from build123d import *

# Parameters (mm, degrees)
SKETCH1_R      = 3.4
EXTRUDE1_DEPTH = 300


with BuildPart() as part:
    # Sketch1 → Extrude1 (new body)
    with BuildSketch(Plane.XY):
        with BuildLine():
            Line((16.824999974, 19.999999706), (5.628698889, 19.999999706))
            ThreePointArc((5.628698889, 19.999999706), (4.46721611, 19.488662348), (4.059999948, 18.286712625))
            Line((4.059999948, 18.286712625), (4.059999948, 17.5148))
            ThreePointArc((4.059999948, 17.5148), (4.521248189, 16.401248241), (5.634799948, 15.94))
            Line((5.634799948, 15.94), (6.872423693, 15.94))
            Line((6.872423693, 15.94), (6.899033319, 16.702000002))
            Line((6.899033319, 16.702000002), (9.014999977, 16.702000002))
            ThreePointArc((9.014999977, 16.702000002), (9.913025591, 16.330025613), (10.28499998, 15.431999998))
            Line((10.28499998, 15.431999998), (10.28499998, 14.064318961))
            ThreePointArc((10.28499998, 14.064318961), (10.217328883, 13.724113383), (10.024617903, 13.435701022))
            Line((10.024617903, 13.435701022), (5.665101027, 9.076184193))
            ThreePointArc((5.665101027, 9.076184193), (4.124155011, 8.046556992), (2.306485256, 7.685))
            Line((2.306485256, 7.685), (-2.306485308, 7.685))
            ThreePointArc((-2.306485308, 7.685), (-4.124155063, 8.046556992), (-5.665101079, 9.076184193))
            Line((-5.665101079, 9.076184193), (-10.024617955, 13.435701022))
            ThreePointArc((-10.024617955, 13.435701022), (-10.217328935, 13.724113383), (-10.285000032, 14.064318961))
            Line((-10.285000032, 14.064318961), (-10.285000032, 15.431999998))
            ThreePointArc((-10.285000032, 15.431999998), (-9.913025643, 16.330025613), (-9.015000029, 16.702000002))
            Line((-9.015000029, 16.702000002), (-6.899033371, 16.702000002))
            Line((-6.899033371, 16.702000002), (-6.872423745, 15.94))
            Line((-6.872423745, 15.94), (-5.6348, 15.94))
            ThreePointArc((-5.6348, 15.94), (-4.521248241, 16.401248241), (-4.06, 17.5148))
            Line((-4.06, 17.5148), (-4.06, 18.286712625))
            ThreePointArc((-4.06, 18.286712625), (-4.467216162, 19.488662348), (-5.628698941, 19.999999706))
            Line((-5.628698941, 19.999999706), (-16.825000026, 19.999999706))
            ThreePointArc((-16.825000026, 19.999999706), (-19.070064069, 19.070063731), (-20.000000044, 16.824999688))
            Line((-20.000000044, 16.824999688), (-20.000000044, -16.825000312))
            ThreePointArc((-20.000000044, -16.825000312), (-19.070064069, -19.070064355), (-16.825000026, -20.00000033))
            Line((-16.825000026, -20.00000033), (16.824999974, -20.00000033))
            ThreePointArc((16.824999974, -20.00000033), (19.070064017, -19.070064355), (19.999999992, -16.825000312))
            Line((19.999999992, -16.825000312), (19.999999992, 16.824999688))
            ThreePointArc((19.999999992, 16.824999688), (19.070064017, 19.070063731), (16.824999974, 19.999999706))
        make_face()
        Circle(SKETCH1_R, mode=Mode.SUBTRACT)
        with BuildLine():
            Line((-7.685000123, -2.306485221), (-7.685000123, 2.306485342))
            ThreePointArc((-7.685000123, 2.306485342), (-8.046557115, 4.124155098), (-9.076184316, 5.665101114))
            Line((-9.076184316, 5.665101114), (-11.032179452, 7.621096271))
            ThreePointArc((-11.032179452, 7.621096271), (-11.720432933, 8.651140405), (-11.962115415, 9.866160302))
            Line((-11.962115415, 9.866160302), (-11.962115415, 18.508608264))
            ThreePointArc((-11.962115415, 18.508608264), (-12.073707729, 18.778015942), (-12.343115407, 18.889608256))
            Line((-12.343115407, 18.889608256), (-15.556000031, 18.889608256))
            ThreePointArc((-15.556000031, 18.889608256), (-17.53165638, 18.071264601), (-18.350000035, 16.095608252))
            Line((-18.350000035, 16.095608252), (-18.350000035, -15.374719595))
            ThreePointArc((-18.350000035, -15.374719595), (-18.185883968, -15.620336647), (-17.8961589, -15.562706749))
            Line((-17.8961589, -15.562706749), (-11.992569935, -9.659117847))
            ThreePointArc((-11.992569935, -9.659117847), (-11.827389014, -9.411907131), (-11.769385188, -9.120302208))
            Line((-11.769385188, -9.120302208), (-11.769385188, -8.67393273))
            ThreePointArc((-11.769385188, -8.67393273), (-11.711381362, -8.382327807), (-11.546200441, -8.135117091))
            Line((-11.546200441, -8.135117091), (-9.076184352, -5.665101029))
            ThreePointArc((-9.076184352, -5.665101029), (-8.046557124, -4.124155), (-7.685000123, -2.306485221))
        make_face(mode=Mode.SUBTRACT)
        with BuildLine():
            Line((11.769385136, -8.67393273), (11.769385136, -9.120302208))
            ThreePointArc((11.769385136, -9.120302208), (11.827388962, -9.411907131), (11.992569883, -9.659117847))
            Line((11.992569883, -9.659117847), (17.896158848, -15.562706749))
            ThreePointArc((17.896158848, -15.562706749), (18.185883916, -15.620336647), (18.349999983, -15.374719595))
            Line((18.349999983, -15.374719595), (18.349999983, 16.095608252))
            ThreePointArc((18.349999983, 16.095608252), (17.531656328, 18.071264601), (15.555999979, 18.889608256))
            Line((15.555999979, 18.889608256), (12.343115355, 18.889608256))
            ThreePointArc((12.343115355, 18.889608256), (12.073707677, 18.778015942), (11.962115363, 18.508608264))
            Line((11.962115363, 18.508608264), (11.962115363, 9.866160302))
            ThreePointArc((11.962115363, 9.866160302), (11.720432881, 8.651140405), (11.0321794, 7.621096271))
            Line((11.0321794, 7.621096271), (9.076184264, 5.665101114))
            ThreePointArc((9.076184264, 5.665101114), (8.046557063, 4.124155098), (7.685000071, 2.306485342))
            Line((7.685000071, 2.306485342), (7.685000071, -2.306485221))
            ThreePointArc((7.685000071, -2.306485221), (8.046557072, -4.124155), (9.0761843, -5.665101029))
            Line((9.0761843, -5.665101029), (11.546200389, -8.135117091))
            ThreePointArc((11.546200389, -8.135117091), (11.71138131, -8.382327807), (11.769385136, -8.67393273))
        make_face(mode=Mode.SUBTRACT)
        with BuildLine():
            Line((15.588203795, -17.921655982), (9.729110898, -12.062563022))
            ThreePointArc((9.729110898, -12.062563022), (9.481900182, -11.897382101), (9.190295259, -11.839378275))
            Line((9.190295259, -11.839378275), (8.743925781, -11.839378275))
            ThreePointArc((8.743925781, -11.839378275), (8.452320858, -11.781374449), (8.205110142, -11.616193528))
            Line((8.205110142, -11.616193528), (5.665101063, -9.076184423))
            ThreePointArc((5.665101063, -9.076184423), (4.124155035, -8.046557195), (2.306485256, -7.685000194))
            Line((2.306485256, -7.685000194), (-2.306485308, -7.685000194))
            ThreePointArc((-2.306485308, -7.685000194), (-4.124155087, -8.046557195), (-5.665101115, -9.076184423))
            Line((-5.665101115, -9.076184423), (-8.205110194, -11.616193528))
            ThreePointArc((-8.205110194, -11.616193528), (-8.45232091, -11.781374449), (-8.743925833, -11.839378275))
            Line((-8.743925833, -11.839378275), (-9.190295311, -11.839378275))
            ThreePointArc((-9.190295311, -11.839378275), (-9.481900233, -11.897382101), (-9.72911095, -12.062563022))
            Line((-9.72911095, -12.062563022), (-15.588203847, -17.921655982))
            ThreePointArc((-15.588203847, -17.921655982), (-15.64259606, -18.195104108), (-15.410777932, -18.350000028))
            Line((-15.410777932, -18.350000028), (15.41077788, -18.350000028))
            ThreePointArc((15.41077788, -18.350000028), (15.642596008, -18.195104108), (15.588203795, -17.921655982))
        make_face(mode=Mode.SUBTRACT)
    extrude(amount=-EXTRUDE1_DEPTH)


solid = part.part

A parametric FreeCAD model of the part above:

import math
import FreeCAD as App
import Part
import Sketcher
Q = App.Units.Quantity

doc = App.newDocument("Part")
body = doc.addObject("PartDesign::Body", "Body")

sketch1 = body.newObject("Sketcher::SketchObject", "Sketch")
sketch1.AttachmentSupport = (doc.getObject("XY_Plane"), [""])
sketch1.MapMode = "FlatFace"
sketch1.addGeometry([
    Part.LineSegment(App.Vector(16.82, 20, 0), App.Vector(5.63, 20, 0)),
    Part.ArcOfCircle(Part.Circle(App.Vector(5.63, 18.43, 0), App.Vector(0, 0, 1), 1.57), math.radians(90), math.radians(185)),
    Part.LineSegment(App.Vector(4.06, 18.29, 0), App.Vector(4.06, 17.51, 0)),
    Part.ArcOfCircle(Part.Circle(App.Vector(5.63, 17.51, 0), App.Vector(0, 0, 1), 1.57), math.radians(180), math.radians(270)),
    Part.LineSegment(App.Vector(5.63, 15.94, 0), App.Vector(6.87, 15.94, 0)),
    Part.LineSegment(App.Vector(6.87, 15.94, 0), App.Vector(6.9, 16.7, 0)),
    Part.LineSegment(App.Vector(6.9, 16.7, 0), App.Vector(9.01, 16.7, 0)),
    Part.ArcOfCircle(Part.Circle(App.Vector(9.01, 15.43, 0), App.Vector(0, 0, 1), 1.27), math.radians(0), math.radians(90)),
    Part.LineSegment(App.Vector(10.28, 15.43, 0), App.Vector(10.28, 14.06, 0)),
    Part.ArcOfCircle(Part.Circle(App.Vector(9.4, 14.06, 0), App.Vector(0, 0, 1), 0.89), math.radians(-45), math.radians(0)),
    Part.LineSegment(App.Vector(10.02, 13.44, 0), App.Vector(5.67, 9.08, 0)),
    Part.ArcOfCircle(Part.Circle(App.Vector(2.31, 12.43, 0), App.Vector(0, 0, 1), 4.75), math.radians(-90), math.radians(-45)),
    Part.LineSegment(App.Vector(2.31, 7.68, 0), App.Vector(-2.31, 7.68, 0)),
    Part.ArcOfCircle(Part.Circle(App.Vector(-2.31, 12.43, 0), App.Vector(0, 0, 1), 4.75), math.radians(-135), math.radians(-90)),
    Part.LineSegment(App.Vector(-5.67, 9.08, 0), App.Vector(-10.02, 13.44, 0)),
    Part.ArcOfCircle(Part.Circle(App.Vector(-9.4, 14.06, 0), App.Vector(0, 0, 1), 0.89), math.radians(180), math.radians(225)),
    Part.LineSegment(App.Vector(-10.29, 14.06, 0), App.Vector(-10.29, 15.43, 0)),
    Part.ArcOfCircle(Part.Circle(App.Vector(-9.02, 15.43, 0), App.Vector(0, 0, 1), 1.27), math.radians(90), math.radians(180)),
    Part.LineSegment(App.Vector(-9.02, 16.7, 0), App.Vector(-6.9, 16.7, 0)),
    Part.LineSegment(App.Vector(-6.9, 16.7, 0), App.Vector(-6.87, 15.94, 0)),
    Part.LineSegment(App.Vector(-6.87, 15.94, 0), App.Vector(-5.63, 15.94, 0)),
    Part.ArcOfCircle(Part.Circle(App.Vector(-5.63, 17.51, 0), App.Vector(0, 0, 1), 1.57), math.radians(-90), math.radians(0)),
    Part.LineSegment(App.Vector(-4.06, 17.51, 0), App.Vector(-4.06, 18.29, 0)),
    Part.ArcOfCircle(Part.Circle(App.Vector(-5.63, 18.43, 0), App.Vector(0, 0, 1), 1.57), math.radians(-5), math.radians(90)),
    Part.LineSegment(App.Vector(-5.63, 20, 0), App.Vector(-16.83, 20, 0)),
    Part.ArcOfCircle(Part.Circle(App.Vector(-16.83, 16.82, 0), App.Vector(0, 0, 1), 3.18), math.radians(90), math.radians(180)),
    Part.LineSegment(App.Vector(-20, 16.82, 0), App.Vector(-20, -16.83, 0)),
    Part.ArcOfCircle(Part.Circle(App.Vector(-16.83, -16.83, 0), App.Vector(0, 0, 1), 3.18), math.radians(180), math.radians(270)),
    Part.LineSegment(App.Vector(-16.83, -20, 0), App.Vector(16.82, -20, 0)),
    Part.ArcOfCircle(Part.Circle(App.Vector(16.82, -16.83, 0), App.Vector(0, 0, 1), 3.18), math.radians(-90), math.radians(0)),
    Part.LineSegment(App.Vector(20, -16.83, 0), App.Vector(20, 16.82, 0)),
    Part.ArcOfCircle(Part.Circle(App.Vector(16.82, 16.82, 0), App.Vector(0, 0, 1), 3.18), math.radians(0), math.radians(90)),
    Part.LineSegment(App.Vector(9.73, -12.06, 0), App.Vector(15.59, -17.92, 0)),
    Part.ArcOfCircle(Part.Circle(App.Vector(15.41, -18.1, 0), App.Vector(0, 0, 1), 0.25), math.radians(-90), math.radians(45)),
    Part.LineSegment(App.Vector(15.41, -18.35, 0), App.Vector(-15.41, -18.35, 0)),
    Part.ArcOfCircle(Part.Circle(App.Vector(-15.41, -18.1, 0), App.Vector(0, 0, 1), 0.25), math.radians(135), math.radians(270)),
    Part.LineSegment(App.Vector(-15.59, -17.92, 0), App.Vector(-9.73, -12.06, 0)),
    Part.ArcOfCircle(Part.Circle(App.Vector(-9.19, -12.6, 0), App.Vector(0, 0, 1), 0.76), math.radians(90), math.radians(135)),
    Part.LineSegment(App.Vector(-9.19, -11.84, 0), App.Vector(-8.74, -11.84, 0)),
    Part.ArcOfCircle(Part.Circle(App.Vector(-8.74, -11.08, 0), App.Vector(0, 0, 1), 0.76), math.radians(-90), math.radians(-45)),
    Part.LineSegment(App.Vector(-8.21, -11.62, 0), App.Vector(-5.67, -9.08, 0)),
    Part.ArcOfCircle(Part.Circle(App.Vector(-2.31, -12.43, 0), App.Vector(0, 0, 1), 4.75), math.radians(90), math.radians(135)),
    Part.LineSegment(App.Vector(-2.31, -7.69, 0), App.Vector(2.31, -7.69, 0)),
    Part.ArcOfCircle(Part.Circle(App.Vector(2.31, -12.43, 0), App.Vector(0, 0, 1), 4.75), math.radians(45), math.radians(90)),
    Part.LineSegment(App.Vector(5.67, -9.08, 0), App.Vector(8.21, -11.62, 0)),
    Part.ArcOfCircle(Part.Circle(App.Vector(8.74, -11.08, 0), App.Vector(0, 0, 1), 0.76), math.radians(-135), math.radians(-90)),
    Part.LineSegment(App.Vector(8.74, -11.84, 0), App.Vector(9.19, -11.84, 0)),
    Part.ArcOfCircle(Part.Circle(App.Vector(9.19, -12.6, 0), App.Vector(0, 0, 1), 0.76), math.radians(45), math.radians(90)),
    Part.Circle(App.Vector(0, 0, 0), App.Vector(0, 0, 1), 3.4),
    Part.LineSegment(App.Vector(-7.69, 2.31, 0), App.Vector(-7.69, -2.31, 0)),
    Part.ArcOfCircle(Part.Circle(App.Vector(-12.43, -2.31, 0), App.Vector(0, 0, 1), 4.75), math.radians(-45), math.radians(0)),
    Part.LineSegment(App.Vector(-9.08, -5.67, 0), App.Vector(-11.55, -8.14, 0)),
    Part.ArcOfCircle(Part.Circle(App.Vector(-11.01, -8.67, 0), App.Vector(0, 0, 1), 0.76), math.radians(135), math.radians(180)),
    Part.LineSegment(App.Vector(-11.77, -8.67, 0), App.Vector(-11.77, -9.12, 0)),
    Part.ArcOfCircle(Part.Circle(App.Vector(-12.53, -9.12, 0), App.Vector(0, 0, 1), 0.76), math.radians(-45), math.radians(0)),
    Part.LineSegment(App.Vector(-11.99, -9.66, 0), App.Vector(-17.9, -15.56, 0)),
    Part.ArcOfCircle(Part.Circle(App.Vector(-18.08, -15.37, 0), App.Vector(0, 0, 1), 0.27), math.radians(180), math.radians(315)),
    Part.LineSegment(App.Vector(-18.35, -15.37, 0), App.Vector(-18.35, 16.1, 0)),
    Part.ArcOfCircle(Part.Circle(App.Vector(-15.56, 16.1, 0), App.Vector(0, 0, 1), 2.79), math.radians(90), math.radians(180)),
    Part.LineSegment(App.Vector(-15.56, 18.89, 0), App.Vector(-12.34, 18.89, 0)),
    Part.ArcOfCircle(Part.Circle(App.Vector(-12.34, 18.51, 0), App.Vector(0, 0, 1), 0.38), math.radians(0), math.radians(90)),
    Part.LineSegment(App.Vector(-11.96, 18.51, 0), App.Vector(-11.96, 9.87, 0)),
    Part.ArcOfCircle(Part.Circle(App.Vector(-8.79, 9.87, 0), App.Vector(0, 0, 1), 3.18), math.radians(180), math.radians(225)),
    Part.LineSegment(App.Vector(-11.03, 7.62, 0), App.Vector(-9.08, 5.67, 0)),
    Part.ArcOfCircle(Part.Circle(App.Vector(-12.43, 2.31, 0), App.Vector(0, 0, 1), 4.75), math.radians(0), math.radians(45)),
    Part.LineSegment(App.Vector(11.77, -9.12, 0), App.Vector(11.77, -8.67, 0)),
    Part.ArcOfCircle(Part.Circle(App.Vector(11.01, -8.67, 0), App.Vector(0, 0, 1), 0.76), math.radians(0), math.radians(45)),
    Part.LineSegment(App.Vector(11.55, -8.14, 0), App.Vector(9.08, -5.67, 0)),
    Part.ArcOfCircle(Part.Circle(App.Vector(12.43, -2.31, 0), App.Vector(0, 0, 1), 4.75), math.radians(180), math.radians(225)),
    Part.LineSegment(App.Vector(7.69, -2.31, 0), App.Vector(7.69, 2.31, 0)),
    Part.ArcOfCircle(Part.Circle(App.Vector(12.43, 2.31, 0), App.Vector(0, 0, 1), 4.75), math.radians(135), math.radians(180)),
    Part.LineSegment(App.Vector(9.08, 5.67, 0), App.Vector(11.03, 7.62, 0)),
    Part.ArcOfCircle(Part.Circle(App.Vector(8.79, 9.87, 0), App.Vector(0, 0, 1), 3.18), math.radians(-45), math.radians(0)),
    Part.LineSegment(App.Vector(11.96, 9.87, 0), App.Vector(11.96, 18.51, 0)),
    Part.ArcOfCircle(Part.Circle(App.Vector(12.34, 18.51, 0), App.Vector(0, 0, 1), 0.38), math.radians(90), math.radians(180)),
    Part.LineSegment(App.Vector(12.34, 18.89, 0), App.Vector(15.56, 18.89, 0)),
    Part.ArcOfCircle(Part.Circle(App.Vector(15.56, 16.1, 0), App.Vector(0, 0, 1), 2.79), math.radians(0), math.radians(90)),
    Part.LineSegment(App.Vector(18.35, 16.1, 0), App.Vector(18.35, -15.37, 0)),
    Part.ArcOfCircle(Part.Circle(App.Vector(18.08, -15.37, 0), App.Vector(0, 0, 1), 0.27), math.radians(-135), math.radians(0)),
    Part.LineSegment(App.Vector(17.9, -15.56, 0), App.Vector(11.99, -9.66, 0)),
    Part.ArcOfCircle(Part.Circle(App.Vector(12.53, -9.12, 0), App.Vector(0, 0, 1), 0.76), math.radians(180), math.radians(225)),
], False)
sketch1.addConstraint([
    Sketcher.Constraint("Tangent", 0, 2, 1, 1),
    Sketcher.Constraint("Coincident", 1, 2, 2, 1),
    Sketcher.Constraint("Tangent", 2, 2, 3, 1),
    Sketcher.Constraint("Tangent", 3, 2, 4, 1),
    Sketcher.Constraint("Coincident", 4, 2, 5, 1),
    Sketcher.Constraint("Coincident", 5, 2, 6, 1),
    Sketcher.Constraint("Tangent", 6, 2, 7, 2),
    Sketcher.Constraint("Tangent", 7, 1, 8, 1),
    Sketcher.Constraint("Tangent", 8, 2, 9, 2),
    Sketcher.Constraint("Tangent", 9, 1, 10, 1),
    Sketcher.Constraint("Tangent", 10, 2, 11, 2),
    Sketcher.Constraint("Tangent", 11, 1, 12, 1),
    Sketcher.Constraint("Tangent", 12, 2, 13, 2),
    Sketcher.Constraint("Tangent", 13, 1, 14, 1),
    Sketcher.Constraint("Tangent", 14, 2, 15, 2),
    Sketcher.Constraint("Tangent", 15, 1, 16, 1),
    Sketcher.Constraint("Tangent", 16, 2, 17, 2),
    Sketcher.Constraint("Tangent", 17, 1, 18, 1),
    Sketcher.Constraint("Coincident", 18, 2, 19, 1),
    Sketcher.Constraint("Coincident", 19, 2, 20, 1),
    Sketcher.Constraint("Tangent", 20, 2, 21, 1),
    Sketcher.Constraint("Tangent", 21, 2, 22, 1),
    Sketcher.Constraint("Coincident", 22, 2, 23, 1),
    Sketcher.Constraint("Tangent", 23, 2, 24, 1),
    Sketcher.Constraint("Tangent", 24, 2, 25, 1),
    Sketcher.Constraint("Tangent", 25, 2, 26, 1),
    Sketcher.Constraint("Tangent", 26, 2, 27, 1),
    Sketcher.Constraint("Tangent", 27, 2, 28, 1),
    Sketcher.Constraint("Tangent", 28, 2, 29, 1),
    Sketcher.Constraint("Tangent", 29, 2, 30, 1),
    Sketcher.Constraint("Tangent", 30, 2, 31, 1),
    Sketcher.Constraint("Tangent", 31, 2, 0, 1),
    Sketcher.Constraint("Tangent", 32, 2, 33, 2),
    Sketcher.Constraint("Tangent", 33, 1, 34, 1),
    Sketcher.Constraint("Tangent", 34, 2, 35, 2),
    Sketcher.Constraint("Tangent", 35, 1, 36, 1),
    Sketcher.Constraint("Tangent", 36, 2, 37, 2),
    Sketcher.Constraint("Tangent", 37, 1, 38, 1),
    Sketcher.Constraint("Tangent", 38, 2, 39, 1),
    Sketcher.Constraint("Tangent", 39, 2, 40, 1),
    Sketcher.Constraint("Tangent", 40, 2, 41, 2),
    Sketcher.Constraint("Tangent", 41, 1, 42, 1),
    Sketcher.Constraint("Tangent", 42, 2, 43, 2),
    Sketcher.Constraint("Tangent", 43, 1, 44, 1),
    Sketcher.Constraint("Tangent", 44, 2, 45, 1),
    Sketcher.Constraint("Tangent", 45, 2, 46, 1),
    Sketcher.Constraint("Tangent", 46, 2, 47, 2),
    Sketcher.Constraint("Tangent", 47, 1, 32, 1),
    Sketcher.Constraint("Tangent", 49, 2, 50, 2),
    Sketcher.Constraint("Tangent", 50, 1, 51, 1),
    Sketcher.Constraint("Tangent", 51, 2, 52, 1),
    Sketcher.Constraint("Tangent", 52, 2, 53, 1),
    Sketcher.Constraint("Tangent", 53, 2, 54, 2),
    Sketcher.Constraint("Tangent", 54, 1, 55, 1),
    Sketcher.Constraint("Tangent", 55, 2, 56, 2),
    Sketcher.Constraint("Tangent", 56, 1, 57, 1),
    Sketcher.Constraint("Tangent", 57, 2, 58, 2),
    Sketcher.Constraint("Tangent", 58, 1, 59, 1),
    Sketcher.Constraint("Tangent", 59, 2, 60, 2),
    Sketcher.Constraint("Tangent", 60, 1, 61, 1),
    Sketcher.Constraint("Tangent", 61, 2, 62, 1),
    Sketcher.Constraint("Tangent", 62, 2, 63, 1),
    Sketcher.Constraint("Tangent", 63, 2, 64, 2),
    Sketcher.Constraint("Tangent", 64, 1, 49, 1),
    Sketcher.Constraint("Tangent", 65, 2, 66, 1),
    Sketcher.Constraint("Tangent", 66, 2, 67, 1),
    Sketcher.Constraint("Tangent", 67, 2, 68, 2),
    Sketcher.Constraint("Tangent", 68, 1, 69, 1),
    Sketcher.Constraint("Tangent", 69, 2, 70, 2),
    Sketcher.Constraint("Tangent", 70, 1, 71, 1),
    Sketcher.Constraint("Tangent", 71, 2, 72, 1),
    Sketcher.Constraint("Tangent", 72, 2, 73, 1),
    Sketcher.Constraint("Tangent", 73, 2, 74, 2),
    Sketcher.Constraint("Tangent", 74, 1, 75, 1),
    Sketcher.Constraint("Tangent", 75, 2, 76, 2),
    Sketcher.Constraint("Tangent", 76, 1, 77, 1),
    Sketcher.Constraint("Tangent", 77, 2, 78, 2),
    Sketcher.Constraint("Tangent", 78, 1, 79, 1),
    Sketcher.Constraint("Tangent", 79, 2, 80, 2),
    Sketcher.Constraint("Tangent", 80, 1, 65, 1),
    Sketcher.Constraint("Horizontal", 0),
    Sketcher.Constraint("Vertical", 2),
    Sketcher.Constraint("Horizontal", 4),
    Sketcher.Constraint("Horizontal", 6),
    Sketcher.Constraint("Vertical", 8),
    Sketcher.Constraint("Horizontal", 12),
    Sketcher.Constraint("Vertical", 16),
    Sketcher.Constraint("Horizontal", 18),
    Sketcher.Constraint("Horizontal", 20),
    Sketcher.Constraint("Vertical", 22),
    Sketcher.Constraint("Horizontal", 24),
    Sketcher.Constraint("Vertical", 26),
    Sketcher.Constraint("Horizontal", 28),
    Sketcher.Constraint("Vertical", 30),
    Sketcher.Constraint("Horizontal", 34),
    Sketcher.Constraint("Horizontal", 38),
    Sketcher.Constraint("Horizontal", 42),
    Sketcher.Constraint("Horizontal", 46),
    Sketcher.Constraint("Vertical", 49),
    Sketcher.Constraint("Vertical", 53),
    Sketcher.Constraint("Vertical", 57),
    Sketcher.Constraint("Horizontal", 59),
    Sketcher.Constraint("Vertical", 61),
    Sketcher.Constraint("Vertical", 65),
    Sketcher.Constraint("Vertical", 69),
    Sketcher.Constraint("Vertical", 73),
    Sketcher.Constraint("Horizontal", 75),
    Sketcher.Constraint("Vertical", 77),
    Sketcher.Constraint("Coincident", 48, 3, -1, 1),
    Sketcher.Constraint("Equal", 1, 3),
    Sketcher.Constraint("Equal", 11, 13),
    Sketcher.Constraint("Equal", 9, 15),
    Sketcher.Constraint("Equal", 7, 17),
    Sketcher.Constraint("Equal", 3, 21),
    Sketcher.Constraint("Equal", 21, 23),
    Sketcher.Constraint("Equal", 25, 27),
    Sketcher.Constraint("Equal", 27, 29),
    Sketcher.Constraint("Equal", 29, 31),
    Sketcher.Constraint("Equal", 33, 35),
    Sketcher.Constraint("Equal", 37, 39),
    Sketcher.Constraint("Equal", 13, 41),
    Sketcher.Constraint("Equal", 41, 43),
    Sketcher.Constraint("Equal", 39, 45),
    Sketcher.Constraint("Equal", 45, 47),
    Sketcher.Constraint("Equal", 43, 50),
    Sketcher.Constraint("Equal", 47, 52),
    Sketcher.Constraint("Equal", 52, 54),
    Sketcher.Constraint("Equal", 31, 62),
    Sketcher.Constraint("Equal", 50, 64),
    Sketcher.Constraint("Equal", 54, 66),
    Sketcher.Constraint("Equal", 64, 68),
    Sketcher.Constraint("Equal", 68, 70),
    Sketcher.Constraint("Equal", 62, 72),
    Sketcher.Constraint("Equal", 60, 74),
    Sketcher.Constraint("Equal", 58, 76),
    Sketcher.Constraint("Equal", 56, 78),
    Sketcher.Constraint("Equal", 66, 80),
    Sketcher.Constraint("Symmetric", 25, 3, 29, 3, -1, 1),
    Sketcher.Constraint("Symmetric", 11, 3, 41, 3, -1, 1),
    Sketcher.Constraint("Symmetric", 64, 3, 68, 3, -1, 1),
    Sketcher.Constraint("Symmetric", 13, 1, 43, 1, -1, 1),
    Sketcher.Constraint("Symmetric", 50, 1, 70, 1, -1, 1),
    Sketcher.Constraint("Symmetric", 9, 3, 15, 3, -2),
    Sketcher.Constraint("Symmetric", 3, 3, 21, 3, -2),
    Sketcher.Constraint("Symmetric", 1, 3, 23, 3, -2),
    Sketcher.Constraint("Symmetric", 39, 3, 45, 3, -2),
    Sketcher.Constraint("Symmetric", 52, 3, 66, 3, -2),
    Sketcher.Constraint("Symmetric", 62, 3, 72, 3, -2),
    Sketcher.Constraint("Symmetric", 58, 3, 76, 3, -2),
    Sketcher.Constraint("Symmetric", 5, 2, 18, 2, -2),
    Sketcher.Constraint("Symmetric", 32, 2, 35, 1, -2),
    Sketcher.Constraint("Symmetric", 55, 2, 78, 1, -2),
    Sketcher.Constraint("Perpendicular", 10, 14),
    Sketcher.Constraint("Parallel", 14, 32),
    Sketcher.Constraint("Perpendicular", 32, 36),
    Sketcher.Constraint("Perpendicular", 44, 51),
    Sketcher.Constraint("Parallel", 51, 55),
    Sketcher.Constraint("Perpendicular", 55, 63),
    Sketcher.Constraint("Equal", 4, 20),
    Sketcher.Constraint("Equal", 28, 26),
    Sketcher.Constraint("Equal", 42, 49),
    Sketcher.Constraint("Equal", 46, 53),
    Sketcher.Constraint("Radius", 7, Q("0.05 in")),
    Sketcher.Constraint("Radius", 37, Q("0.03 in")),
    Sketcher.Constraint("Radius", 58, Q("0.11 in")),
    Sketcher.Constraint("Angle", 5, Q("88 deg")),
    Sketcher.Constraint("Radius", 1, Q("0.062 in")),
    Sketcher.Constraint("Radius", 9, Q("0.035 in")),
    Sketcher.Constraint("Radius", 11, Q("0.187 in")),
    Sketcher.Constraint("Radius", 25, Q("0.125 in")),
    Sketcher.Constraint("Radius", 60, Q("0.015 in")),
    Sketcher.Constraint("Diameter", 48, Q("6.8 mm")),
    Sketcher.Constraint("Radius", 33, Q("0.250918 mm")),
    Sketcher.Constraint("DistanceX", 0, 2, 0, 1, Q("11.196301 mm")),
    Sketcher.Constraint("DistanceX", 28, 1, 28, 2, Q("33.65 mm")),
    Sketcher.Constraint("Radius", 56, Q("0.265854 mm")),
    Sketcher.Constraint("DistanceX", 12, 2, 12, 1, Q("4.612971 mm")),
    Sketcher.Constraint("DistanceX", 38, 1, 38, 2, Q("0.446369 mm")),
    Sketcher.Constraint("DistanceY", 8, 2, 8, 1, Q("1.367681 mm")),
    Sketcher.Constraint("DistanceX", -1, 1, 3, 3, Q("5.6348 mm")),
    Sketcher.Constraint("DistanceY", -1, 1, 3, 3, Q("17.5148 mm")),
    Sketcher.Constraint("DistanceX", -1, 1, 7, 3, Q("9.015 mm")),
    Sketcher.Constraint("DistanceY", -1, 1, 7, 3, Q("15.432 mm")),
    Sketcher.Constraint("DistanceX", 50, 3, -1, 1, Q("12.4348 mm")),
    Sketcher.Constraint("DistanceX", 58, 3, -1, 1, Q("15.556 mm")),
    Sketcher.Constraint("DistanceY", 33, 1, -1, 1, Q("18.35 mm")),
    Sketcher.Constraint("DistanceX", 51, 2, -1, 1, Q("11.5462 mm")),
    Sketcher.Constraint("Distance", 32, Q("8.286009 mm")),
    Sketcher.Constraint("DistanceX", 4, 1, 4, 2, Q("1.237624 mm")),
    Sketcher.Constraint("DistanceX", 59, 1, 59, 2, Q("3.212885 mm")),
    Sketcher.Constraint("DistanceY", 57, 1, 57, 2, Q("31.470328 mm")),
])
pad1 = body.newObject("PartDesign::Pad", "Pad")
pad1.Profile = sketch1
pad1.Length = 300
pad1.Reversed = True

doc.recompute()
